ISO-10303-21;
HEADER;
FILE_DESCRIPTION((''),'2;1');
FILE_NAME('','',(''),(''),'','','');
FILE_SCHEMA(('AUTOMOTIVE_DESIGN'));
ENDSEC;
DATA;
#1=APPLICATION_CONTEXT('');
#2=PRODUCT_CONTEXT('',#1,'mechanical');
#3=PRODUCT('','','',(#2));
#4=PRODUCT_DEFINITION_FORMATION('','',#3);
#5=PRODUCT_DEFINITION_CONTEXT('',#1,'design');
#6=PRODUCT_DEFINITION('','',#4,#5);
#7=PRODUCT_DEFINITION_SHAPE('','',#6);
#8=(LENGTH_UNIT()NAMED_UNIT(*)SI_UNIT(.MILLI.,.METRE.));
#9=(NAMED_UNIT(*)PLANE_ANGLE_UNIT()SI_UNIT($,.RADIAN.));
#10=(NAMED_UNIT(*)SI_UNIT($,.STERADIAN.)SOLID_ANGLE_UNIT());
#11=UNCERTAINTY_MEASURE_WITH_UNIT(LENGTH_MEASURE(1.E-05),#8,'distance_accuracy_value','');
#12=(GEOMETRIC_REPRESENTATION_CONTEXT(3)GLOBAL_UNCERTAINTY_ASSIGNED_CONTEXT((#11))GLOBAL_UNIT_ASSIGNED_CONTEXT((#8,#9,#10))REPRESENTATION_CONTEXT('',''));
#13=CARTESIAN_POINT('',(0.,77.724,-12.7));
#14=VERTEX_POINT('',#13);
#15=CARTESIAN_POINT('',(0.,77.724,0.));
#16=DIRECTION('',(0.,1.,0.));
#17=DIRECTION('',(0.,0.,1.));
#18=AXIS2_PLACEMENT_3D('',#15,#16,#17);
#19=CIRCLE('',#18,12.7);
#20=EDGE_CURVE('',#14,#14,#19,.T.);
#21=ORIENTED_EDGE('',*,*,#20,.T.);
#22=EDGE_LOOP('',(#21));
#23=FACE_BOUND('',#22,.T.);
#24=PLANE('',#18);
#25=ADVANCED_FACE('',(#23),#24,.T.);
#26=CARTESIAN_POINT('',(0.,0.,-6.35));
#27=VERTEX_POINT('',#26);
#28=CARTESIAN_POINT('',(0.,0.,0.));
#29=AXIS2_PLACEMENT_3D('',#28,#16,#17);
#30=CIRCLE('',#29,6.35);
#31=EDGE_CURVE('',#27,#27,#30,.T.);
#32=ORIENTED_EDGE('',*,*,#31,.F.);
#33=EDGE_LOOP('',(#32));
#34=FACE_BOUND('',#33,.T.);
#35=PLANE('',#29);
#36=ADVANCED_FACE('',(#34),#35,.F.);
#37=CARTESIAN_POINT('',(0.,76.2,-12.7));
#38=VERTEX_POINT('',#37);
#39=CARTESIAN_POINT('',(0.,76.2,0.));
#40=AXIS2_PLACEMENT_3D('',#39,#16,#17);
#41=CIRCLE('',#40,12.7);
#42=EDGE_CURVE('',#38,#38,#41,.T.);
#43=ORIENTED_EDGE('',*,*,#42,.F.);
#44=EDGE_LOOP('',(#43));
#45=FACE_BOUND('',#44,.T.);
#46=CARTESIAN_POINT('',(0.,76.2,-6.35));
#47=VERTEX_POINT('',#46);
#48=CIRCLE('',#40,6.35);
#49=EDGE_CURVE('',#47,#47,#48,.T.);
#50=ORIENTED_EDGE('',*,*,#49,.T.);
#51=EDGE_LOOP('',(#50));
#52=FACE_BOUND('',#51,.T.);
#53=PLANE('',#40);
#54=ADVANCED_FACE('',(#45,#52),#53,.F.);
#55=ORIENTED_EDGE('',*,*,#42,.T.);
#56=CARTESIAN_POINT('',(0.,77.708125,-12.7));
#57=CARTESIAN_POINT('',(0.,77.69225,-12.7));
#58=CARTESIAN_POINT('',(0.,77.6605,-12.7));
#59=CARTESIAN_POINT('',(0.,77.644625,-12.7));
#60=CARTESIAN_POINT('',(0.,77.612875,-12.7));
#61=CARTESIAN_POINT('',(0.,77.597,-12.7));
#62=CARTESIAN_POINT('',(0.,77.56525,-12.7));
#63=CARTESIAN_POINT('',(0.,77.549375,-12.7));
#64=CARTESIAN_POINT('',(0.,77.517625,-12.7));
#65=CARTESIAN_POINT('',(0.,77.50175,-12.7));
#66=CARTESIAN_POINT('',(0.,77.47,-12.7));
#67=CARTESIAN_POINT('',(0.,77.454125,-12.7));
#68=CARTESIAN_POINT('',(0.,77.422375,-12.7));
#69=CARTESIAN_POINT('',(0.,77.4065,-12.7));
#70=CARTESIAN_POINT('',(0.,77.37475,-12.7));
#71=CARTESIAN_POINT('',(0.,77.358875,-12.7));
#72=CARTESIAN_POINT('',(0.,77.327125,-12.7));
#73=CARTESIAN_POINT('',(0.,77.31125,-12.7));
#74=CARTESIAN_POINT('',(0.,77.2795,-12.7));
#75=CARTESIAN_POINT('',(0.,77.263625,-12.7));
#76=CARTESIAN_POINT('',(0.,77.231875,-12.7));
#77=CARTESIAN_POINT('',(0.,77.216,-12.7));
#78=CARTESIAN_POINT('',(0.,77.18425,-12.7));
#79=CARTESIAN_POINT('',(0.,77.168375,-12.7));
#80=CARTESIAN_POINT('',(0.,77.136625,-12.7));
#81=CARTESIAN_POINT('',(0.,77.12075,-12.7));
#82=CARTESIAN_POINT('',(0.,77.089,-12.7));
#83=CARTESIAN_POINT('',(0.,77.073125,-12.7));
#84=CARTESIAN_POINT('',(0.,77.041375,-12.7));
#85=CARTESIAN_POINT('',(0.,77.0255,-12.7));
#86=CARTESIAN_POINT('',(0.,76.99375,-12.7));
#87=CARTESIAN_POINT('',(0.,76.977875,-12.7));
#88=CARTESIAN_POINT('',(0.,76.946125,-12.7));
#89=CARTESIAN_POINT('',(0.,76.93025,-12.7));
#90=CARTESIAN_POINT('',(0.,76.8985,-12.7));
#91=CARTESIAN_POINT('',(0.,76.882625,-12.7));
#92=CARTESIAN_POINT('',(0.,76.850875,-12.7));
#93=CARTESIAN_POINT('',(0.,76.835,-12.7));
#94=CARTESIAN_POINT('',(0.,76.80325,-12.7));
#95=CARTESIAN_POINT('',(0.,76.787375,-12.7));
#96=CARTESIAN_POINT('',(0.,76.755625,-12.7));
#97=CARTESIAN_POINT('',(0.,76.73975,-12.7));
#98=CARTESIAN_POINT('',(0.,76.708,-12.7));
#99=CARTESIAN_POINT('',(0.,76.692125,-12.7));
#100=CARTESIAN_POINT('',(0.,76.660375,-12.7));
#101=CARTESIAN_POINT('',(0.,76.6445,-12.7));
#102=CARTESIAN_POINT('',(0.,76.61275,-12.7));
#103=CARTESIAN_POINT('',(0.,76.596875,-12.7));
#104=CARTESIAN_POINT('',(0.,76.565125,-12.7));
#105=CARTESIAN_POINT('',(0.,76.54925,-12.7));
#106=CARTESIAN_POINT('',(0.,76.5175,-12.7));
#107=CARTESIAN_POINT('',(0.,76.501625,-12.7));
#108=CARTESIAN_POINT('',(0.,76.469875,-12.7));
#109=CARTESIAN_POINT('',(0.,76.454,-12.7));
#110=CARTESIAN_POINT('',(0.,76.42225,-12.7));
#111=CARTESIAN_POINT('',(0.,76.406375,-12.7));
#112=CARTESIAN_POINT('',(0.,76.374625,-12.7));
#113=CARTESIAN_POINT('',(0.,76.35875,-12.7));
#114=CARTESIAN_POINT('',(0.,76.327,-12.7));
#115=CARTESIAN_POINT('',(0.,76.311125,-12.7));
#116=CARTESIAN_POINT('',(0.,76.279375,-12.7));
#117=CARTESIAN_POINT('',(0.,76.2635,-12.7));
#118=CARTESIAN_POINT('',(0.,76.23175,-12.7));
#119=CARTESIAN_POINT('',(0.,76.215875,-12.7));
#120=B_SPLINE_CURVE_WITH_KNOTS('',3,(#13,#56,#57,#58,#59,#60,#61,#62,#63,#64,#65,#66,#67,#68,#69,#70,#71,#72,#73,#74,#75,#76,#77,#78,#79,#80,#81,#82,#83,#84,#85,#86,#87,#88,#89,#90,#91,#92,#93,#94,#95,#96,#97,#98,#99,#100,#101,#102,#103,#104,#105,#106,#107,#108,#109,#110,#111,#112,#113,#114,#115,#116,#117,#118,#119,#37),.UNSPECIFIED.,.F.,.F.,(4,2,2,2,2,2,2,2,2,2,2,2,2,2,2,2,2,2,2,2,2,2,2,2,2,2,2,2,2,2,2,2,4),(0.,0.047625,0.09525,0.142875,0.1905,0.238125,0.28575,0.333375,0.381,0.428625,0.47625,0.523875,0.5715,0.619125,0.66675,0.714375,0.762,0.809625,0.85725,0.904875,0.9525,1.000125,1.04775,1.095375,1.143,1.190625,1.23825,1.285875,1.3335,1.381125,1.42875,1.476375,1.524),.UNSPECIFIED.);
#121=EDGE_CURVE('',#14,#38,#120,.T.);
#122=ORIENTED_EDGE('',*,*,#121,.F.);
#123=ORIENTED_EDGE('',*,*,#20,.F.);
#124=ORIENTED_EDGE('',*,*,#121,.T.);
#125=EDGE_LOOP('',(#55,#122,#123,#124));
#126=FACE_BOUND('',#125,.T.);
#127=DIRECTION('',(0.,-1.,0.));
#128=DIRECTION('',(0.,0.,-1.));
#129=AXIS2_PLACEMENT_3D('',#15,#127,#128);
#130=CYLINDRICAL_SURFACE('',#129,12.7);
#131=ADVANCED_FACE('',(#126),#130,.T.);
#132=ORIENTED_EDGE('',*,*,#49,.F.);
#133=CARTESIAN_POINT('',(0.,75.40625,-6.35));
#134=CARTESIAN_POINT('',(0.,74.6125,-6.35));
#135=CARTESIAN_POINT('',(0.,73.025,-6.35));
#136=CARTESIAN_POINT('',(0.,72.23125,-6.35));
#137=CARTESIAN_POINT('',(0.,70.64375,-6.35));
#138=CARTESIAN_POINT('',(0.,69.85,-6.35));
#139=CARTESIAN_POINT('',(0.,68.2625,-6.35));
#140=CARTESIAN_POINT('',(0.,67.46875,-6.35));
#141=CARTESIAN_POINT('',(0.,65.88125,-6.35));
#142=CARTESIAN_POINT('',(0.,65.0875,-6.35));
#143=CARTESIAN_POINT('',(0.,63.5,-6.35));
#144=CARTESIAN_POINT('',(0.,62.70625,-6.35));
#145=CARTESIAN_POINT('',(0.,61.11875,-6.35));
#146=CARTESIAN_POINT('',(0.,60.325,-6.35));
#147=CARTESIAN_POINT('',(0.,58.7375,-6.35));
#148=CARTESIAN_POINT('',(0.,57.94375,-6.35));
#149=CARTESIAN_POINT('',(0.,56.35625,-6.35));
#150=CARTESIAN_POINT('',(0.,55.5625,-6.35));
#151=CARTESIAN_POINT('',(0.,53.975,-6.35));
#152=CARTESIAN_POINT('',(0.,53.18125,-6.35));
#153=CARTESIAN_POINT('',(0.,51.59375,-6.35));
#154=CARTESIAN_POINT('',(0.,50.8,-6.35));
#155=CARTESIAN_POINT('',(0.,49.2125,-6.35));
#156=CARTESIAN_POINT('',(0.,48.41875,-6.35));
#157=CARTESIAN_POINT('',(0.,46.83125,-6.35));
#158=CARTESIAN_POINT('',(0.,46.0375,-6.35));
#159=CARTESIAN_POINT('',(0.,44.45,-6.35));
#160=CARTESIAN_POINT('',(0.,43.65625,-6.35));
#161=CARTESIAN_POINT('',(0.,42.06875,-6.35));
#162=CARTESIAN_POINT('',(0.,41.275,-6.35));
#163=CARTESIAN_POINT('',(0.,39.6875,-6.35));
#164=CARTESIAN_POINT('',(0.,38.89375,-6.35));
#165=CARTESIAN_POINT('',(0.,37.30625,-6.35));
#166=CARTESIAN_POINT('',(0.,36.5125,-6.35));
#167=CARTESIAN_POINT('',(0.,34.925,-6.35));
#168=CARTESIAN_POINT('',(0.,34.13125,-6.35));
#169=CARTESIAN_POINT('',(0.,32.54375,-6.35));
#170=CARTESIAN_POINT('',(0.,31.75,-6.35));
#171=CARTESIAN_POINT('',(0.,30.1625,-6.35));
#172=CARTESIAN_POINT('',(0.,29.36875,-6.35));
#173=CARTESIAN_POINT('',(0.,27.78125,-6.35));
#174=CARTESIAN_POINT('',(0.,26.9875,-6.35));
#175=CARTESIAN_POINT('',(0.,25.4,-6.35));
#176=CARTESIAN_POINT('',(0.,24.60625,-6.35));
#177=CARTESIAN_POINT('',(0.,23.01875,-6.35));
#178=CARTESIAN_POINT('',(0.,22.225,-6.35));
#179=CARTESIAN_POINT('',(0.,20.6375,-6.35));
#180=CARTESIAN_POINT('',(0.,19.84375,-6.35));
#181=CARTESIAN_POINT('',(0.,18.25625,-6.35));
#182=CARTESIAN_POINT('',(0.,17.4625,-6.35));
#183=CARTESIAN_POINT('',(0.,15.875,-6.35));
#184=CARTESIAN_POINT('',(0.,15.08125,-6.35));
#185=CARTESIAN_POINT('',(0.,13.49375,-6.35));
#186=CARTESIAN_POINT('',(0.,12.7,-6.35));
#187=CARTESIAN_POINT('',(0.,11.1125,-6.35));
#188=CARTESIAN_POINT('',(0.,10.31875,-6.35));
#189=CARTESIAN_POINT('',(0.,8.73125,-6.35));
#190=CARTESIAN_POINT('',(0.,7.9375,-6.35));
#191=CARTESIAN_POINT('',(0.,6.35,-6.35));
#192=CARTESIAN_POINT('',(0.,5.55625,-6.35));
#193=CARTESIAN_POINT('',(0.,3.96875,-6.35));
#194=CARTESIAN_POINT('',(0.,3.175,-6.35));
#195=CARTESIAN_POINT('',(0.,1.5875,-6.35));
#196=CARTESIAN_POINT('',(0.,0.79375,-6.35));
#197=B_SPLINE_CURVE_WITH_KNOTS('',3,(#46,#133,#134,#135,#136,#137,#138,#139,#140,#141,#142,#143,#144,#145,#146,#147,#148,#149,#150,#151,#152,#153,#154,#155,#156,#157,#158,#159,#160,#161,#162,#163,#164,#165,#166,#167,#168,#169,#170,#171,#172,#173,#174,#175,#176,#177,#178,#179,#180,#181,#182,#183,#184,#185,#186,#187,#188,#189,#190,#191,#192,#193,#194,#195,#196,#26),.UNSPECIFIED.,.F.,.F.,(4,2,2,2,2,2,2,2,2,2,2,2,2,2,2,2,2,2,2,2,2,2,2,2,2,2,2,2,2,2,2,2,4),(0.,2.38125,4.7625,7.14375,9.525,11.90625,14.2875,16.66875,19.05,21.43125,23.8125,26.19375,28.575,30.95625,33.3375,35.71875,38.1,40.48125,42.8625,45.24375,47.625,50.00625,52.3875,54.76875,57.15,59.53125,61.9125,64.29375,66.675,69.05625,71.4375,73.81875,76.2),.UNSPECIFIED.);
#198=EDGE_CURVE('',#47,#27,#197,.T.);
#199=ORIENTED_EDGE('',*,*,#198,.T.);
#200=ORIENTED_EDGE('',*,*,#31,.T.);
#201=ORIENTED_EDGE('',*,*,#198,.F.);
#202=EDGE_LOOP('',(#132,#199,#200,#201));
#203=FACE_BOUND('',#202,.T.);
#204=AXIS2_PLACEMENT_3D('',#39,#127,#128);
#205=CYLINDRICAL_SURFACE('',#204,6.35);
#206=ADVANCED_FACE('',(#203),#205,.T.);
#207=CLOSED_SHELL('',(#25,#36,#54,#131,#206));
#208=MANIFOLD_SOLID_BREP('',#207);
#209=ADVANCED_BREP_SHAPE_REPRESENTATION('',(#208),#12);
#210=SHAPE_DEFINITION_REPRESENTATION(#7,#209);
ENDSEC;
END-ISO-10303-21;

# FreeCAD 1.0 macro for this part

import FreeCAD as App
import Part
import Sketcher
from FreeCAD import Vector
Q = App.Units.Quantity

doc = App.newDocument("Part")
body = doc.addObject("PartDesign::Body", "Body")

sketch1 = body.newObject("Sketcher::SketchObject", "Sketch")
sketch1.AttachmentSupport = (doc.getObject("XZ_Plane"), [""])
sketch1.MapMode = "FlatFace"
sketch1.addGeometry(Part.Circle(Vector(0, 0, 0), Vector(0, 0, 1), 6), False)
sketch1.addConstraint([
    Sketcher.Constraint("Coincident", 0, 3, -1, 1),
    Sketcher.Constraint("Diameter", 0, Q("0.5 in")),
])
pad1 = body.newObject("PartDesign::Pad", "Pad")
pad1.Profile = sketch1
pad1.Length = Q("3 in")
pad1.Reversed = True

sketch2 = body.newObject("Sketcher::SketchObject", "Sketch001")
sketch2.AttachmentSupport = (doc.getObject("XZ_Plane"), [""])
sketch2.MapMode = "FlatFace"
sketch2.AttachmentOffset = App.Placement(Vector(0, 0, -3 * 25.4), App.Rotation())
sketch2.addGeometry(Part.Circle(Vector(0, 0, 0), Vector(0, 0, 1), 13), False)
sketch2.addConstraint([
    Sketcher.Constraint("Coincident", 0, 3, -1, 1),
    Sketcher.Constraint("Diameter", 0, Q("1 in")),
])
pad2 = body.newObject("PartDesign::Pad", "Pad001")
pad2.Profile = sketch2
pad2.Length = Q("0.06 in")
pad2.Reversed = True

doc.recompute()
